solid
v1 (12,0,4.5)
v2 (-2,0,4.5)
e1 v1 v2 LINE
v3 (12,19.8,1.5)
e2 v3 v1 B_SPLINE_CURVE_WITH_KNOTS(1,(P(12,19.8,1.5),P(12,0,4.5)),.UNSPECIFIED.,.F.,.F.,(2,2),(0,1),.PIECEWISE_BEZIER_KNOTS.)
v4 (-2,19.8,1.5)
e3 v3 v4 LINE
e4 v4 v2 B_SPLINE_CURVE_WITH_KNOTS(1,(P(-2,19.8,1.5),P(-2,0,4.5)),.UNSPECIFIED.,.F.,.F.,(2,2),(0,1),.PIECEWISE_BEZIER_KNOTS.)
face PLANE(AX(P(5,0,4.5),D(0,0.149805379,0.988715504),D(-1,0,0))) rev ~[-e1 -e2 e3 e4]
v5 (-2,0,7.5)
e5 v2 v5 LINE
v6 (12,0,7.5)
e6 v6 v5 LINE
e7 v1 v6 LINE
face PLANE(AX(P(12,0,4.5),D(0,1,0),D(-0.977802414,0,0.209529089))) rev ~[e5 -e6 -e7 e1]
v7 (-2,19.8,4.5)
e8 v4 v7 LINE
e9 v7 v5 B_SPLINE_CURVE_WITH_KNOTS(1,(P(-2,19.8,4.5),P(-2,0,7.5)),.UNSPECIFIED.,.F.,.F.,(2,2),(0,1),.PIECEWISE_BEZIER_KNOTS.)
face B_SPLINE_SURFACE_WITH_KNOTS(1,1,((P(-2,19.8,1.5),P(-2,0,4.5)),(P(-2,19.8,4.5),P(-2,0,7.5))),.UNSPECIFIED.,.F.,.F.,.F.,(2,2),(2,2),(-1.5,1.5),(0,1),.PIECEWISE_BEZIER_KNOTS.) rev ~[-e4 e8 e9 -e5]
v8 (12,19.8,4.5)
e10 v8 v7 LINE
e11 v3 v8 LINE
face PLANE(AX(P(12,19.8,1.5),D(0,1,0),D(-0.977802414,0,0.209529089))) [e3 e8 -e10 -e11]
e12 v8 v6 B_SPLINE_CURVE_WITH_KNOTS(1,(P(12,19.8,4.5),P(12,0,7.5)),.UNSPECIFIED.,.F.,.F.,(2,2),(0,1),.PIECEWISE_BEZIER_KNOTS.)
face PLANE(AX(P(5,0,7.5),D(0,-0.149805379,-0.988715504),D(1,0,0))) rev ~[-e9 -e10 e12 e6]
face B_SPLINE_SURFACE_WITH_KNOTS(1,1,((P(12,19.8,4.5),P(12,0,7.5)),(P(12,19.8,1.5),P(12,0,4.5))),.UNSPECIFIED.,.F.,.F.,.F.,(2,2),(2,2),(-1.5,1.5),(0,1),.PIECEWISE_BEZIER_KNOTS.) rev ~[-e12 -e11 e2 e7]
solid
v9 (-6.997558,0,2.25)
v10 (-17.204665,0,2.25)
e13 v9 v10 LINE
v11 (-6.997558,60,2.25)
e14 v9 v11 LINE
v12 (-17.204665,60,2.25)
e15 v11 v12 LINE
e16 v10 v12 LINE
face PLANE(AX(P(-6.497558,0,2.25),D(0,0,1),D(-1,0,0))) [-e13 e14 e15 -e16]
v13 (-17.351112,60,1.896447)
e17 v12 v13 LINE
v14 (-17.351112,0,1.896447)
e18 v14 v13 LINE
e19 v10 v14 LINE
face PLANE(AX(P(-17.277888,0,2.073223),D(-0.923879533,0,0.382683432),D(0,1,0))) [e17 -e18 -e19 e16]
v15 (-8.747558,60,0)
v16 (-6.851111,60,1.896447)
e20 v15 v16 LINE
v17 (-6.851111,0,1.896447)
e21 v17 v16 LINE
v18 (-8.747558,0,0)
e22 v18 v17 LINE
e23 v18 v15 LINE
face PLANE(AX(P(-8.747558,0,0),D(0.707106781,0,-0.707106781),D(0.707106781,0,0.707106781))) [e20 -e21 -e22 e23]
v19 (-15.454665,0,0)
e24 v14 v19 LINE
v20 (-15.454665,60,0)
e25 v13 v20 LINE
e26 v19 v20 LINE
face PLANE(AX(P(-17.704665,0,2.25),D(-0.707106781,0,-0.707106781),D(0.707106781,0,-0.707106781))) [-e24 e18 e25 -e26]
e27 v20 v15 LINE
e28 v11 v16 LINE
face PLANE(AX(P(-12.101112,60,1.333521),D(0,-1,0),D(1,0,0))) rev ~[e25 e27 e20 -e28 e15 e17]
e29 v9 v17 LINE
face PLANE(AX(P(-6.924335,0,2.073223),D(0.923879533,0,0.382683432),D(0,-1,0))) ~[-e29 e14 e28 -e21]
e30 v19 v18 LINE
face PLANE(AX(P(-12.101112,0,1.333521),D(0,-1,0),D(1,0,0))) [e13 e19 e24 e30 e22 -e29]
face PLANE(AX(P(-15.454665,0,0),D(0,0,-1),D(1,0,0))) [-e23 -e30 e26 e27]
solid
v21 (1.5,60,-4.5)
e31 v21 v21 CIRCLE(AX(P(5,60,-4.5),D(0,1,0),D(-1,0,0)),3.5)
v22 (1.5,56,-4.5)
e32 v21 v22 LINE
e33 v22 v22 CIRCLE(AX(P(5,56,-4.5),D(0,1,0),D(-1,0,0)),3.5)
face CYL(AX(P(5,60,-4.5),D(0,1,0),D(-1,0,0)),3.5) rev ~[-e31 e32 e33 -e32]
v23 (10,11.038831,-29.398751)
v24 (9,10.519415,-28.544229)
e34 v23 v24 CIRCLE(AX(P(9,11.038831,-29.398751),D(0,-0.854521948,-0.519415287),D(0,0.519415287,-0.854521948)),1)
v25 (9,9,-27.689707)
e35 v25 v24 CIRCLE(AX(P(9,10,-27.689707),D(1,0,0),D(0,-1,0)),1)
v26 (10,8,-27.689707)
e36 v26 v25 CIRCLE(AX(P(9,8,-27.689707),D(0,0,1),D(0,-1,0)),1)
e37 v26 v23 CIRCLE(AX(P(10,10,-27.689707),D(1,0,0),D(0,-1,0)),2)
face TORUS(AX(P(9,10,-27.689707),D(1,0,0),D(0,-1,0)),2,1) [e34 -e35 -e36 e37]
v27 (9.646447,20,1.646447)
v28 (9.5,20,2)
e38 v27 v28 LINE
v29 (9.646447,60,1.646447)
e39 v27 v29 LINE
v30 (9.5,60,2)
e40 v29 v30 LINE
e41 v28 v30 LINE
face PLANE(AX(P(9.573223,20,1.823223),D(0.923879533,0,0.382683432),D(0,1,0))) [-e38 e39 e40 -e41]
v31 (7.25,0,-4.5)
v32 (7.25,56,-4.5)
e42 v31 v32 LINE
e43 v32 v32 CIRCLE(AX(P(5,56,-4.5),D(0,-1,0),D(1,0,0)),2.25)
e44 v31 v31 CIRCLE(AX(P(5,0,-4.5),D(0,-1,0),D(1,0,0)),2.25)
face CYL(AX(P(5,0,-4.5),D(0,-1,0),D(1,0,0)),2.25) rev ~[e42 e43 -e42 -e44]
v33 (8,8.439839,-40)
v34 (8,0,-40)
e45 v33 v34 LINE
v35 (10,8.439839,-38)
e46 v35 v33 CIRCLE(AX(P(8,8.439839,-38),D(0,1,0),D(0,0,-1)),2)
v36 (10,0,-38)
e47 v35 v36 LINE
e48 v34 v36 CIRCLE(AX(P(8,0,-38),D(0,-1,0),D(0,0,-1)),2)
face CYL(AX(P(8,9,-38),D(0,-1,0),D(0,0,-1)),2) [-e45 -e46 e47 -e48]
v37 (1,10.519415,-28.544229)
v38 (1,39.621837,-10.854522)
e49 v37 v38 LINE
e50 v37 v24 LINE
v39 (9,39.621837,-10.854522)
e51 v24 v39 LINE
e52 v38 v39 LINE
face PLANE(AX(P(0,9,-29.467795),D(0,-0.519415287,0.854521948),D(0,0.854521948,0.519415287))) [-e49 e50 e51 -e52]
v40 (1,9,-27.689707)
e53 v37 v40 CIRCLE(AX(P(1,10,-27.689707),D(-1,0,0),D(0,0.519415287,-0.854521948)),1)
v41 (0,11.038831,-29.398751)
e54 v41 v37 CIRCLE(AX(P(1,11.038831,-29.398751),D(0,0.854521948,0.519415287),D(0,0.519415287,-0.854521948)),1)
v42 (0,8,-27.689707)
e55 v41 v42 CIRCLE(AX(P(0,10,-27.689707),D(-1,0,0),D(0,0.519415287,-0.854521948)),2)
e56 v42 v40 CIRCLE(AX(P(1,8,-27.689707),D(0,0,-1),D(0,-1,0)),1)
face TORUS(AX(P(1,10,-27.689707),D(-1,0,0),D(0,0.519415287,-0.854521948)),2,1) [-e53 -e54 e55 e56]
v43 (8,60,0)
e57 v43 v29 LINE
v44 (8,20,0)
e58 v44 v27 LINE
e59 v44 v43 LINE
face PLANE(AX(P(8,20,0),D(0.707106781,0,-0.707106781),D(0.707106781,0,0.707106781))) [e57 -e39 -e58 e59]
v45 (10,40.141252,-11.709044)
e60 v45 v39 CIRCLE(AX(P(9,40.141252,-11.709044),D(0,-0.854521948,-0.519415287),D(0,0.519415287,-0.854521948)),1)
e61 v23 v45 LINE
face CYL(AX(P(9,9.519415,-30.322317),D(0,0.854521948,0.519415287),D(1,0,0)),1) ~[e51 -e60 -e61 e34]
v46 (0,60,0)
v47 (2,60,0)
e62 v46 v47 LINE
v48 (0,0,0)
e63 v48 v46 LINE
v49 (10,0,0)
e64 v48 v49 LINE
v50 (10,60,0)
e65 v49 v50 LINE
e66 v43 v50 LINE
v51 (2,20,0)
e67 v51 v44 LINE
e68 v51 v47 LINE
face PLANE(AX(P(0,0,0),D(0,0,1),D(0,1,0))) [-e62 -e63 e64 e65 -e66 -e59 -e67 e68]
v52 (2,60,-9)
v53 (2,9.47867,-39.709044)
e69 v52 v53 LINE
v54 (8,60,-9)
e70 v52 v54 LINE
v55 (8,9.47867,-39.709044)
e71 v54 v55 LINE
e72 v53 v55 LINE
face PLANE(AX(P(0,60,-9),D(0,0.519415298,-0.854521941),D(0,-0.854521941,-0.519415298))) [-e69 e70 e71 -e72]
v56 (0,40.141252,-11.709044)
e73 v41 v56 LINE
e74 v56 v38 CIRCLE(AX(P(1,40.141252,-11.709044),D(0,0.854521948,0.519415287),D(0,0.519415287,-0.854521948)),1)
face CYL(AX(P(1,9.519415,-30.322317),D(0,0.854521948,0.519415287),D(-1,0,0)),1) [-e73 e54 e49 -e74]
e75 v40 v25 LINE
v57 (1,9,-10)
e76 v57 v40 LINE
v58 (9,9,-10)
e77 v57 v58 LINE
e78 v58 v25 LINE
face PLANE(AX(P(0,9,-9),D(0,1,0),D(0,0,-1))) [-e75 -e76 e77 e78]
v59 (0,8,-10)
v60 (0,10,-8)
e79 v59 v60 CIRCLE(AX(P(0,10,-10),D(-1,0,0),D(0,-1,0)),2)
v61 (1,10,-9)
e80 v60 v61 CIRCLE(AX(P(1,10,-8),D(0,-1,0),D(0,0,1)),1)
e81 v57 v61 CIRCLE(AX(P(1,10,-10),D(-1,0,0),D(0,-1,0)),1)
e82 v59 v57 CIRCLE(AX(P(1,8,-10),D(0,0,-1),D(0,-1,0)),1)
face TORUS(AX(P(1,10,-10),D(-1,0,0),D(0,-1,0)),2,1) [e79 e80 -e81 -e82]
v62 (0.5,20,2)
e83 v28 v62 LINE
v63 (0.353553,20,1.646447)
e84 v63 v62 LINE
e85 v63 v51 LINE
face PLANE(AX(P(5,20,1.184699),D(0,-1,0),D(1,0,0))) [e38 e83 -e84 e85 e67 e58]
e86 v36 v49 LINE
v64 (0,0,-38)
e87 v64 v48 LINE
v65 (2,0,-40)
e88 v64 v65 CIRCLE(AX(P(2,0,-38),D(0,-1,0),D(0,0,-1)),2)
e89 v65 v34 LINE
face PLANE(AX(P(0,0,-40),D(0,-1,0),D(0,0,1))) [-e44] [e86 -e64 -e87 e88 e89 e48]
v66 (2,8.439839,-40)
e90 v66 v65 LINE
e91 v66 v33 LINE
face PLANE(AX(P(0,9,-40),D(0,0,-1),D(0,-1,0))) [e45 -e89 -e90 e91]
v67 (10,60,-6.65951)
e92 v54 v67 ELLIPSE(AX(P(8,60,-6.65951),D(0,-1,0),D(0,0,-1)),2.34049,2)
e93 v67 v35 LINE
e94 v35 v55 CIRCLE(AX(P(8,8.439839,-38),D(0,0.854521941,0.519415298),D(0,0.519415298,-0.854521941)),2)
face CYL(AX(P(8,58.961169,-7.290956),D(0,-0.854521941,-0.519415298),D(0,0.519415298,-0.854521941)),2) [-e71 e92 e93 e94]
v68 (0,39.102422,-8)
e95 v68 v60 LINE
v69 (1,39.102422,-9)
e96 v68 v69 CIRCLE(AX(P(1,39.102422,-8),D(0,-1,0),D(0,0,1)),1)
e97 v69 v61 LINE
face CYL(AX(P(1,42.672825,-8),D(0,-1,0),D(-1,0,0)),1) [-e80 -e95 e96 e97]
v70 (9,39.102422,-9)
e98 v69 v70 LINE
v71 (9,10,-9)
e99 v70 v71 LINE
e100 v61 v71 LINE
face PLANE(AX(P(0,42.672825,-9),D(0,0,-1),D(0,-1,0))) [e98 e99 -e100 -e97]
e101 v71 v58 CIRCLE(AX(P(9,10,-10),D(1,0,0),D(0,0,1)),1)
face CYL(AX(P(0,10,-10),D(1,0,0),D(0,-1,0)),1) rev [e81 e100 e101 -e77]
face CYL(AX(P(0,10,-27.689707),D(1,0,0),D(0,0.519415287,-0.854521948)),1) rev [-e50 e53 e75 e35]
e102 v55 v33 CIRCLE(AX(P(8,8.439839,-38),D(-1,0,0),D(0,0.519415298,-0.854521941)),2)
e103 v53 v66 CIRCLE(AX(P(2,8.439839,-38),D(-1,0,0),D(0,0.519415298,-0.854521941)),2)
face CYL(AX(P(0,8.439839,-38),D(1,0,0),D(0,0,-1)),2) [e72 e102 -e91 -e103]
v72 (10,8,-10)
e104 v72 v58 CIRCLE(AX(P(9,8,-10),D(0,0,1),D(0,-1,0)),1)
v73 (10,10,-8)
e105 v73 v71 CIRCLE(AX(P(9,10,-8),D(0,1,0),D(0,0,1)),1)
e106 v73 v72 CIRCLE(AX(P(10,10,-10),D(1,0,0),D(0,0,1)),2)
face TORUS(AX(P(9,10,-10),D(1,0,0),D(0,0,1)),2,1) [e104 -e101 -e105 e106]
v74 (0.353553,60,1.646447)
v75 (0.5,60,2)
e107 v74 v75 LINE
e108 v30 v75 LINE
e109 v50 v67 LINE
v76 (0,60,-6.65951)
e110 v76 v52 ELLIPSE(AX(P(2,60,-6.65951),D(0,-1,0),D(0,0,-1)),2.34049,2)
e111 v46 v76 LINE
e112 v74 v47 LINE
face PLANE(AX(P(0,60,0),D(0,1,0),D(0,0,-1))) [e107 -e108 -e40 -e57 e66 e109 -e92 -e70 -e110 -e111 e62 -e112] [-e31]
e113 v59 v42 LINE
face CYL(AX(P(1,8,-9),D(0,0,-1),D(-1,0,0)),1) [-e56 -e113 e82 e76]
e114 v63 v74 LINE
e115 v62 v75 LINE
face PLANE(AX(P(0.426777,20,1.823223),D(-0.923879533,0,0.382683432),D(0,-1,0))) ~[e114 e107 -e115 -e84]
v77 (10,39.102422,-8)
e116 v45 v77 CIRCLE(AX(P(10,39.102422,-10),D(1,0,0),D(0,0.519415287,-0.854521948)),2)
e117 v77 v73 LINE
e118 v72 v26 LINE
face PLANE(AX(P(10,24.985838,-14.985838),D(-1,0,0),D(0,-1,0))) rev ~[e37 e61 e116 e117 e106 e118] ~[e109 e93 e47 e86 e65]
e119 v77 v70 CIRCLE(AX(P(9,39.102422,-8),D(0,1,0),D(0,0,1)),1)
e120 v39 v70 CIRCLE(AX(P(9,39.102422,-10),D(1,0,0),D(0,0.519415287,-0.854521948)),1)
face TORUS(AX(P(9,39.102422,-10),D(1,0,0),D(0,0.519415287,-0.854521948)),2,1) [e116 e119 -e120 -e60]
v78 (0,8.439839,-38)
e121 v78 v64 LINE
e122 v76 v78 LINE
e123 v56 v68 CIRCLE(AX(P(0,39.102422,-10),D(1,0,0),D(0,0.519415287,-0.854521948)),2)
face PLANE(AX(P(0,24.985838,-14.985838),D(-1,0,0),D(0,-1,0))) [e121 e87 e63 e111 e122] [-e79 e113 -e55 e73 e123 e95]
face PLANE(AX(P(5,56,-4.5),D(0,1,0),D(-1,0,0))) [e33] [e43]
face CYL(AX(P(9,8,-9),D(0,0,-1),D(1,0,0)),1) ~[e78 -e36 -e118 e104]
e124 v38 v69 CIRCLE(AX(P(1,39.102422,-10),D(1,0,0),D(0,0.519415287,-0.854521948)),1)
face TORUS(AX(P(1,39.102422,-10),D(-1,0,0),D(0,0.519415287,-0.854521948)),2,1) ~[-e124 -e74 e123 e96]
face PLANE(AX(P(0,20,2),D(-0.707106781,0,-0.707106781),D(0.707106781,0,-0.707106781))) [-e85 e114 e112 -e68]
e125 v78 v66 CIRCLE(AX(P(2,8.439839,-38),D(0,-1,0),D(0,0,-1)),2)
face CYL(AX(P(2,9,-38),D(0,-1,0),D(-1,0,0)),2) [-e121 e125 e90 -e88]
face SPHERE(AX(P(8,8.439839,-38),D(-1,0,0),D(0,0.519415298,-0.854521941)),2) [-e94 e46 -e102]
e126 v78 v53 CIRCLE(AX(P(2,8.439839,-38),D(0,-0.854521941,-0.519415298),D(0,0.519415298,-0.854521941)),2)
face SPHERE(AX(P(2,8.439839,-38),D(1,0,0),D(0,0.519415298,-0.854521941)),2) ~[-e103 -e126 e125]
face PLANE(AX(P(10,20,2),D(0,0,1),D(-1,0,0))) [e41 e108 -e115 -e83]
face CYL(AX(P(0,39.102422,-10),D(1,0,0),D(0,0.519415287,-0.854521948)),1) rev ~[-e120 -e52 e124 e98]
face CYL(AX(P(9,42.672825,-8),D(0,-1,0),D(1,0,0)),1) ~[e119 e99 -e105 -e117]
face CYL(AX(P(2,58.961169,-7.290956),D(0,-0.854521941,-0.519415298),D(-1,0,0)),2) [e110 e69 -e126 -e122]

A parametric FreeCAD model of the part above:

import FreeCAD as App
import Part
import Sketcher

V = App.Vector
Q = App.Units.Quantity


def edges_at(feature, points):
    """Names of the edges that pass closest to the given points."""
    edges = feature.Shape.Edges
    near = lambda p: min(range(len(edges)), key=lambda i: edges[i].distToShape(Part.Vertex(*p))[0])
    return sorted({f"Edge{near(p) + 1}" for p in points})

doc = App.newDocument("Part")
body = doc.addObject("PartDesign::Body", "Body")

# Sketch on YZ plane
sketch1 = body.newObject("Sketcher::SketchObject", "Sketch")
sketch1.AttachmentSupport = (doc.getObject("YZ_Plane"), [""])
sketch1.MapMode = "FlatFace"
sketch1.addGeometry([
    Part.LineSegment(V(60, 0, 0), V(0, 0, 0)),  # 0
    Part.LineSegment(V(0, 0, 0), V(0, -40, 0)),  # 1
    Part.LineSegment(V(0, -40, 0), V(9, -40, 0)),  # 2
    Part.LineSegment(V(9, -40, 0), V(60, -9, 0)),  # 3
    Part.LineSegment(V(60, -9, 0), V(60, 0, 0)),  # 4
], False)
sketch1.addConstraint([
    Sketcher.Constraint("Coincident", 0, 2, 1, 1),
    Sketcher.Constraint("Coincident", 1, 2, 2, 1),
    Sketcher.Constraint("Coincident", 2, 2, 3, 1),
    Sketcher.Constraint("Coincident", 3, 2, 4, 1),
    Sketcher.Constraint("Coincident", 4, 2, 0, 1),
    Sketcher.Constraint("Horizontal", 0),
    Sketcher.Constraint("Vertical", 1),
    Sketcher.Constraint("Horizontal", 2),
    Sketcher.Constraint("Vertical", 4),
    Sketcher.Constraint("Coincident", 0, 2, -1, 1),
    Sketcher.Constraint("Equal", 2, 4),
    Sketcher.Constraint("DistanceX", 0, 2, 0, 1, Q("60 mm")),
    Sketcher.Constraint("DistanceX", 2, 1, 2, 2, Q("9 mm")),
    Sketcher.Constraint("DistanceY", 1, 2, 1, 1, Q("40 mm")),
])
pad1 = body.newObject("PartDesign::Pad", "Pad")
pad1.Profile = sketch1
pad1.Length = 10

# Sketch on XZ plane
sketch2 = body.newObject("Sketcher::SketchObject", "Sketch001")
sketch2.AttachmentSupport = (doc.getObject("XZ_Plane"), [""])
sketch2.MapMode = "FlatFace"
sketch2.addGeometry(Part.Circle(V(5, -4.5, 0), V(0, 0, 1), 2.25), False)
sketch2.addConstraint([
    Sketcher.Constraint("Diameter", 0, Q("4.5 mm")),
    Sketcher.Constraint("DistanceX", -1, 1, 0, 3, Q("5 mm")),
    Sketcher.Constraint("DistanceY", 0, 3, -1, 1, Q("4.5 mm")),
])
pocket1 = body.newObject("PartDesign::Pocket", "Pocket")
pocket1.Profile = sketch2
pocket1.Type = "ThroughAll"

# Sketch on XZ plane
sketch3 = body.newObject("Sketcher::SketchObject", "Sketch002")
sketch3.AttachmentSupport = (doc.getObject("XZ_Plane"), [""])
sketch3.MapMode = "FlatFace"
sketch3.AttachmentOffset = App.Placement(V(0, 0, -60), App.Rotation())
sketch3.addGeometry(Part.Circle(V(5, -4.5, 0), V(0, 0, 1), 3.5), False)
sketch3.addConstraint([
    Sketcher.Constraint("Diameter", 0, Q("7 mm")),
    Sketcher.Constraint("DistanceX", -1, 1, 0, 3, Q("5 mm")),
    Sketcher.Constraint("DistanceY", 0, 3, -1, 1, Q("4.5 mm")),
])
pocket2 = body.newObject("PartDesign::Pocket", "Pocket001")
pocket2.Profile = sketch3
pocket2.Length = 4
pocket2.Reversed = True

# Sketch on YZ plane
sketch4 = body.newObject("Sketcher::SketchObject", "Sketch003")
sketch4.AttachmentSupport = (doc.getObject("YZ_Plane"), [""])
sketch4.MapMode = "FlatFace"
sketch4.addGeometry([
    Part.LineSegment(V(9, -9, 0), V(42.672825, -9, 0)),
    Part.LineSegment(V(42.672825, -9, 0), V(9, -29.467795, 0)),
    Part.LineSegment(V(9, -29.467795, 0), V(9, -9, 0)),
], False)
sketch4.addConstraint([
    Sketcher.Constraint("Coincident", 0, 2, 1, 1),
    Sketcher.Constraint("Coincident", 1, 2, 2, 1),
    Sketcher.Constraint("Coincident", 2, 2, 0, 1),
    Sketcher.Constraint("Horizontal", 0),
    Sketcher.Constraint("Vertical", 2),
    Sketcher.Constraint("DistanceY", 0, 2, -1, 1, Q("9 mm")),
    Sketcher.Constraint("DistanceX", -1, 1, 1, 2, Q("9 mm")),
    Sketcher.Constraint("DistanceX", 0, 1, 0, 2, Q("33.672825 mm")),
    Sketcher.Constraint("DistanceY", 2, 1, 2, 2, Q("20.467795 mm")),
])
pocket3 = body.newObject("PartDesign::Pocket", "Pocket002")
pocket3.Profile = sketch4
pocket3.Type = "ThroughAll"
pocket3.Reversed = True

# Sketch on XZ plane
sketch5 = body.newObject("Sketcher::SketchObject", "Sketch004")
sketch5.AttachmentSupport = (doc.getObject("XZ_Plane"), [""])
sketch5.MapMode = "FlatFace"
sketch5.AttachmentOffset = App.Placement(V(0, 0, -20), App.Rotation())
sketch5.addGeometry([
    Part.LineSegment(V(10, 2, 0), V(8, 0, 0)),
    Part.LineSegment(V(8, 0, 0), V(2, 0, 0)),
    Part.LineSegment(V(2, 0, 0), V(0, 2, 0)),
    Part.LineSegment(V(0, 2, 0), V(10, 2, 0)),
], False)
sketch5.addConstraint([
    Sketcher.Constraint("Coincident", 0, 2, 1, 1),
    Sketcher.Constraint("Coincident", 1, 2, 2, 1),
    Sketcher.Constraint("Coincident", 2, 2, 3, 1),
    Sketcher.Constraint("Coincident", 3, 2, 0, 1),
    Sketcher.Constraint("Horizontal", 1),
    Sketcher.Constraint("Horizontal", 3),
    Sketcher.Constraint("PointOnObject", 0, 2, -1),
    Sketcher.Constraint("PointOnObject", 2, 2, -2),
    Sketcher.Constraint("Perpendicular", 0, 2),
    Sketcher.Constraint("Equal", 0, 2),
    Sketcher.Constraint("DistanceX", 1, 2, 1, 1, Q("6 mm")),
    Sketcher.Constraint("DistanceX", 3, 1, 3, 2, Q("10 mm")),
])
pad2 = body.newObject("PartDesign::Pad", "Pad001")
pad2.Profile = sketch5
pad2.Length = 40
pad2.Reversed = True
doc.recompute()

chamfer = body.newObject("PartDesign::Chamfer", "Chamfer")
chamfer.Base = (pad2, edges_at(pad2, [(0, 40, 2), (10, 40, 2)]))
chamfer.Size = 0.5
doc.recompute()

fillet = body.newObject("PartDesign::Fillet", "Fillet")
fillet.Base = (chamfer, edges_at(chamfer, [
    (0, 25.836, -9),
    (5, 9, -9),
    (10, 25.836, -9),
    (5, 42.673, -9),
    (0, 9, -19.234),
    (5, 9, -29.468),
    (10, 9, -19.234),
    (0, 25.836, -19.234),
    (10, 25.836, -19.234),
]))
fillet.Radius = 1
doc.recompute()

fillet2 = body.newObject("PartDesign::Fillet", "Fillet001")
fillet2.Base = (fillet, edges_at(fillet, [
    (10, 34.5, -24.5),
    (0, 34.5, -24.5),
    (10, 4.5, -40),
    (0, 4.5, -40),
    (5, 9, -40),
]))
fillet2.Radius = 2
body2 = doc.addObject("PartDesign::Body", "Body001")

# Sketch on XZ plane
sketch6 = body2.newObject("Sketcher::SketchObject", "Sketch005")
sketch6.AttachmentSupport = (doc.getObject("XZ_Plane001"), [""])
sketch6.MapMode = "FlatFace"
sketch6.AttachmentOffset = App.Placement(V(0, 0, -19.8), App.Rotation())
sketch6.addGeometry([
    Part.LineSegment(V(12, 4.5, 0), V(12, 1.5, 0)),
    Part.LineSegment(V(12, 1.5, 0), V(-2, 1.5, 0)),
    Part.LineSegment(V(-2, 1.5, 0), V(-2, 4.5, 0)),
    Part.LineSegment(V(-2, 4.5, 0), V(12, 4.5, 0)),
], False)
sketch6.addConstraint([
    Sketcher.Constraint("Coincident", 0, 2, 1, 1),
    Sketcher.Constraint("Coincident", 1, 2, 2, 1),
    Sketcher.Constraint("Coincident", 2, 2, 3, 1),
    Sketcher.Constraint("Coincident", 3, 2, 0, 1),
    Sketcher.Constraint("Vertical", 0),
    Sketcher.Constraint("Horizontal", 1),
    Sketcher.Constraint("Vertical", 2),
    Sketcher.Constraint("Horizontal", 3),
    Sketcher.Constraint("DistanceX", 1, 2, 1, 1, Q("14 mm")),
    Sketcher.Constraint("DistanceY", 0, 2, 0, 1, Q("3 mm")),
    Sketcher.Constraint("DistanceX", -1, 1, 0, 2, Q("12 mm")),
    Sketcher.Constraint("DistanceY", -1, 1, 0, 2, Q("1.5 mm")),
])

# Sketch on XZ plane
sketch7 = body2.newObject("Sketcher::SketchObject", "Sketch006")
sketch7.AttachmentSupport = (doc.getObject("XZ_Plane001"), [""])
sketch7.MapMode = "FlatFace"
sketch7.addGeometry([
    Part.LineSegment(V(12, 7.5, 0), V(12, 4.5, 0)),
    Part.LineSegment(V(12, 4.5, 0), V(-2, 4.5, 0)),
    Part.LineSegment(V(-2, 4.5, 0), V(-2, 7.5, 0)),
    Part.LineSegment(V(-2, 7.5, 0), V(12, 7.5, 0)),
], False)
sketch7.addConstraint([
    Sketcher.Constraint("Coincident", 0, 2, 1, 1),
    Sketcher.Constraint("Coincident", 1, 2, 2, 1),
    Sketcher.Constraint("Coincident", 2, 2, 3, 1),
    Sketcher.Constraint("Coincident", 3, 2, 0, 1),
    Sketcher.Constraint("Vertical", 0),
    Sketcher.Constraint("Horizontal", 1),
    Sketcher.Constraint("Vertical", 2),
    Sketcher.Constraint("Horizontal", 3),
    Sketcher.Constraint("DistanceX", 1, 2, 1, 1, Q("14 mm")),
    Sketcher.Constraint("DistanceY", 0, 2, 0, 1, Q("3 mm")),
    Sketcher.Constraint("DistanceX", -1, 1, 0, 2, Q("12 mm")),
    Sketcher.Constraint("DistanceY", -1, 1, 0, 2, Q("4.5 mm")),
])

additiveloft = body2.newObject("PartDesign::AdditiveLoft", "AdditiveLoft")
additiveloft.Profile = sketch6
additiveloft.Sections = [sketch7]
body3 = doc.addObject("PartDesign::Body", "Body002")

# Sketch on XZ plane
sketch8 = body3.newObject("Sketcher::SketchObject", "Sketch007")
sketch8.AttachmentSupport = (doc.getObject("XZ_Plane002"), [""])
sketch8.MapMode = "FlatFace"
sketch8.addGeometry([
    Part.LineSegment(V(-17.704665, 2.25, 0), V(-6.497558, 2.25, 0)),
    Part.LineSegment(V(-6.497558, 2.25, 0), V(-8.747558, 0, 0)),
    Part.LineSegment(V(-8.747558, 0, 0), V(-15.454665, 0, 0)),
    Part.LineSegment(V(-15.454665, 0, 0), V(-17.704665, 2.25, 0)),
], False)
sketch8.addConstraint([
    Sketcher.Constraint("Coincident", 0, 2, 1, 1),
    Sketcher.Constraint("Coincident", 1, 2, 2, 1),
    Sketcher.Constraint("Coincident", 2, 2, 3, 1),
    Sketcher.Constraint("Coincident", 3, 2, 0, 1),
    Sketcher.Constraint("Horizontal", 0),
    Sketcher.Constraint("Horizontal", 2),
    Sketcher.Constraint("PointOnObject", 1, 2, -1),
    Sketcher.Constraint("Perpendicular", 1, 3),
    Sketcher.Constraint("Equal", 1, 3),
    Sketcher.Constraint("DistanceY", -1, 1, 0, 2, Q("2.25 mm")),
    Sketcher.Constraint("DistanceX", 0, 1, 0, 2, Q("11.207107 mm")),
    Sketcher.Constraint("DistanceX", 0, 2, -1, 1, Q("6.497558 mm")),
])
pad3 = body3.newObject("PartDesign::Pad", "Pad002")
pad3.Profile = sketch8
pad3.Length = 60
pad3.Reversed = True
doc.recompute()

chamfer2 = body3.newObject("PartDesign::Chamfer", "Chamfer001")
chamfer2.Base = (pad3, edges_at(pad3, [(-17.705, 30, 2.25), (-6.498, 30, 2.25)]))
chamfer2.Size = 0.5

doc.recompute()
